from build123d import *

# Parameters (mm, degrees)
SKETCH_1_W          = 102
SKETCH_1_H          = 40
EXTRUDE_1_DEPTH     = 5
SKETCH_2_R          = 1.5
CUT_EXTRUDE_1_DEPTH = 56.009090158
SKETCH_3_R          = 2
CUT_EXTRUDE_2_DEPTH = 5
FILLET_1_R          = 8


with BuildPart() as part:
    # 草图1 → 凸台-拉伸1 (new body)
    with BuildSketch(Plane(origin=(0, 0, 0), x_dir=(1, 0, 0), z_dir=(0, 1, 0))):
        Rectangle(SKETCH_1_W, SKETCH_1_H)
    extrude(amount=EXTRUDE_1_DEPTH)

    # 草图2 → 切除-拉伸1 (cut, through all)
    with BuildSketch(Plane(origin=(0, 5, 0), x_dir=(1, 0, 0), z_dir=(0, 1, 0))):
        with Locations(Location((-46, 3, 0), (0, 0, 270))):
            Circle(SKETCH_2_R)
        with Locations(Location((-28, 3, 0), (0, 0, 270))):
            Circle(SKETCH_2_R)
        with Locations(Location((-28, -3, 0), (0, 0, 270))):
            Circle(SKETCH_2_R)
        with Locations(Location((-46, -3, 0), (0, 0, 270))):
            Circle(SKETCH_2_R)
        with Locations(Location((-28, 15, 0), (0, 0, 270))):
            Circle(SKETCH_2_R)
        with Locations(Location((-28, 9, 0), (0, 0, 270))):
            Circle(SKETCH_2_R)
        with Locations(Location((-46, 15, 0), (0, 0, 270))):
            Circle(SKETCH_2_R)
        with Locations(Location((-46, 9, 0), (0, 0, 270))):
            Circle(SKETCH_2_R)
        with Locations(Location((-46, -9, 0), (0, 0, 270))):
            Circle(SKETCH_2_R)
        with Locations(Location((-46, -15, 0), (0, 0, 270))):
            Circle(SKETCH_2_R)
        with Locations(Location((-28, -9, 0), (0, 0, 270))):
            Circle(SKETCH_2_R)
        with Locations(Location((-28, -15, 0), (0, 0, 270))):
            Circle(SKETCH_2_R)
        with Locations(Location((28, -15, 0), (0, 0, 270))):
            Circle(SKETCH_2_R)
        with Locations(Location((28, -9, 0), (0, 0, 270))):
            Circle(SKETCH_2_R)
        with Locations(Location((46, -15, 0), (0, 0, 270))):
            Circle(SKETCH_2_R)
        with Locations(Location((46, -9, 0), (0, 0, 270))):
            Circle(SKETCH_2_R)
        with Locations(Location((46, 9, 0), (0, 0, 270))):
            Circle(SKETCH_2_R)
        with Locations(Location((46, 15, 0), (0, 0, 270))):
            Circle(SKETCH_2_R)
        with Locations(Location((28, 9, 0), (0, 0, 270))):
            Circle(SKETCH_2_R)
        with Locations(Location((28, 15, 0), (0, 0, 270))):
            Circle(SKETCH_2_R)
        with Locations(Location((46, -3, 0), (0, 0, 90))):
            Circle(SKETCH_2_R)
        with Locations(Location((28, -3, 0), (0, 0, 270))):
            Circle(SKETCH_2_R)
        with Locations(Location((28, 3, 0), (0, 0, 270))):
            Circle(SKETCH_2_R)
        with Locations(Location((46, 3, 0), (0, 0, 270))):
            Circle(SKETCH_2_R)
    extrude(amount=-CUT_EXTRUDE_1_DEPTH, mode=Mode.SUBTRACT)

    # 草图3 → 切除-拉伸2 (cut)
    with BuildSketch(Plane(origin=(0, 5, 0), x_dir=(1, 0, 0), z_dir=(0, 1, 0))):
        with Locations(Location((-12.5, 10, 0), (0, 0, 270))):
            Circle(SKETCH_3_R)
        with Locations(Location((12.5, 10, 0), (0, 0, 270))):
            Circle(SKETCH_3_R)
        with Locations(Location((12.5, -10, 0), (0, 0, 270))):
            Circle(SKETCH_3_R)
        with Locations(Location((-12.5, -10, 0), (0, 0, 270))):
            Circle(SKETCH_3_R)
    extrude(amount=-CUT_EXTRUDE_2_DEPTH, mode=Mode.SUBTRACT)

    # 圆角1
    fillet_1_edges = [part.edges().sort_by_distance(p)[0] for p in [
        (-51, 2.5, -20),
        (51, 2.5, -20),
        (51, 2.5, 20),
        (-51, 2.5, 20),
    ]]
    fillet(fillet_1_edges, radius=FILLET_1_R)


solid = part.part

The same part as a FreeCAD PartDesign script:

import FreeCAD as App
import Part
import Sketcher


def edges_at(feature, points):
    """Names of the edges that pass closest to the given points."""
    edges = feature.Shape.Edges
    near = lambda p: min(range(len(edges)), key=lambda i: edges[i].distToShape(Part.Vertex(*p))[0])
    return sorted({f"Edge{near(p) + 1}" for p in points})


def add_polygon(sketch, points):
    """Adds a closed chain of lines whose ends are joined by coincident constraints."""
    first, n = sketch.GeometryCount, len(points)
    for a, b in zip(points, points[1:] + points[:1]):
        sketch.addGeometry(Part.LineSegment(App.Vector(*a, 0), App.Vector(*b, 0)), False)
    for i in range(n):
        sketch.addConstraint(Sketcher.Constraint("Coincident", first + i, 2, first + (i + 1) % n, 1))

doc = App.newDocument("Part")
body = doc.addObject("PartDesign::Body", "Body")

sketch1 = body.newObject("Sketcher::SketchObject", "Sketch")
sketch1.AttachmentSupport = (doc.getObject("XZ_Plane"), [""])
sketch1.MapMode = "FlatFace"
add_polygon(sketch1, [(-51, -20), (-51, 20), (51, 20), (51, -20)])
sketch1.addConstraint(Sketcher.Constraint("Vertical", 0))
sketch1.addConstraint(Sketcher.Constraint("Horizontal", 1))
sketch1.addConstraint(Sketcher.Constraint("Vertical", 2))
sketch1.addConstraint(Sketcher.Constraint("Horizontal", 3))
sketch1.addConstraint(Sketcher.Constraint("Symmetric", 0, 2, 2, 2, -1, 1))
sketch1.addConstraint(Sketcher.Constraint("DistanceX", 1, 1, 1, 2, 102.0))
sketch1.addConstraint(Sketcher.Constraint("DistanceY", 0, 1, 0, 2, 40.0))
pad1 = body.newObject("PartDesign::Pad", "Pad")
pad1.Profile = sketch1
pad1.Length = 5
pad1.Reversed = True

sketch2 = body.newObject("Sketcher::SketchObject", "Sketch001")
sketch2.AttachmentSupport = (doc.getObject("XZ_Plane"), [""])
sketch2.MapMode = "FlatFace"
sketch2.AttachmentOffset = App.Placement(App.Vector(0, 0, -5), App.Rotation())
sketch2.addGeometry(Part.Circle(App.Vector(-46, -3, 0), App.Vector(0, 0, 1), 1.5), False)
sketch2.addGeometry(Part.Circle(App.Vector(-28, -3, 0), App.Vector(0, 0, 1), 1.5), False)
sketch2.addGeometry(Part.Circle(App.Vector(-28, 3, 0), App.Vector(0, 0, 1), 1.5), False)
sketch2.addGeometry(Part.Circle(App.Vector(-46, 3, 0), App.Vector(0, 0, 1), 1.5), False)
sketch2.addGeometry(Part.Circle(App.Vector(-28, -15, 0), App.Vector(0, 0, 1), 1.5), False)
sketch2.addGeometry(Part.Circle(App.Vector(-28, -9, 0), App.Vector(0, 0, 1), 1.5), False)
sketch2.addGeometry(Part.Circle(App.Vector(-46, -15, 0), App.Vector(0, 0, 1), 1.5), False)
sketch2.addGeometry(Part.Circle(App.Vector(-46, -9, 0), App.Vector(0, 0, 1), 1.5), False)
sketch2.addGeometry(Part.Circle(App.Vector(-46, 9, 0), App.Vector(0, 0, 1), 1.5), False)
sketch2.addGeometry(Part.Circle(App.Vector(-46, 15, 0), App.Vector(0, 0, 1), 1.5), False)
sketch2.addGeometry(Part.Circle(App.Vector(-28, 9, 0), App.Vector(0, 0, 1), 1.5), False)
sketch2.addGeometry(Part.Circle(App.Vector(-28, 15, 0), App.Vector(0, 0, 1), 1.5), False)
sketch2.addGeometry(Part.Circle(App.Vector(28, 15, 0), App.Vector(0, 0, 1), 1.5), False)
sketch2.addGeometry(Part.Circle(App.Vector(28, 9, 0), App.Vector(0, 0, 1), 1.5), False)
sketch2.addGeometry(Part.Circle(App.Vector(46, 15, 0), App.Vector(0, 0, 1), 1.5), False)
sketch2.addGeometry(Part.Circle(App.Vector(46, 9, 0), App.Vector(0, 0, 1), 1.5), False)
sketch2.addGeometry(Part.Circle(App.Vector(46, -9, 0), App.Vector(0, 0, 1), 1.5), False)
sketch2.addGeometry(Part.Circle(App.Vector(46, -15, 0), App.Vector(0, 0, 1), 1.5), False)
sketch2.addGeometry(Part.Circle(App.Vector(28, -9, 0), App.Vector(0, 0, 1), 1.5), False)
sketch2.addGeometry(Part.Circle(App.Vector(28, -15, 0), App.Vector(0, 0, 1), 1.5), False)
sketch2.addGeometry(Part.Circle(App.Vector(46, 3, 0), App.Vector(0, 0, 1), 1.5), False)
sketch2.addGeometry(Part.Circle(App.Vector(28, 3, 0), App.Vector(0, 0, 1), 1.5), False)
sketch2.addGeometry(Part.Circle(App.Vector(28, -3, 0), App.Vector(0, 0, 1), 1.5), False)
sketch2.addGeometry(Part.Circle(App.Vector(46, -3, 0), App.Vector(0, 0, 1), 1.5), False)
sketch2.addConstraint(Sketcher.Constraint("Equal", 0, 1))
sketch2.addConstraint(Sketcher.Constraint("Equal", 1, 2))
sketch2.addConstraint(Sketcher.Constraint("Equal", 2, 3))
sketch2.addConstraint(Sketcher.Constraint("Equal", 3, 4))
sketch2.addConstraint(Sketcher.Constraint("Equal", 4, 5))
sketch2.addConstraint(Sketcher.Constraint("Equal", 5, 6))
sketch2.addConstraint(Sketcher.Constraint("Equal", 6, 7))
sketch2.addConstraint(Sketcher.Constraint("Equal", 7, 8))
sketch2.addConstraint(Sketcher.Constraint("Equal", 8, 9))
sketch2.addConstraint(Sketcher.Constraint("Equal", 9, 10))
sketch2.addConstraint(Sketcher.Constraint("Equal", 10, 11))
sketch2.addConstraint(Sketcher.Constraint("Equal", 11, 12))
sketch2.addConstraint(Sketcher.Constraint("Equal", 12, 13))
sketch2.addConstraint(Sketcher.Constraint("Equal", 13, 14))
sketch2.addConstraint(Sketcher.Constraint("Equal", 14, 15))
sketch2.addConstraint(Sketcher.Constraint("Equal", 15, 16))
sketch2.addConstraint(Sketcher.Constraint("Equal", 16, 17))
sketch2.addConstraint(Sketcher.Constraint("Equal", 17, 18))
sketch2.addConstraint(Sketcher.Constraint("Equal", 18, 19))
sketch2.addConstraint(Sketcher.Constraint("Equal", 19, 20))
sketch2.addConstraint(Sketcher.Constraint("Equal", 20, 21))
sketch2.addConstraint(Sketcher.Constraint("Equal", 21, 22))
sketch2.addConstraint(Sketcher.Constraint("Equal", 22, 23))
sketch2.addConstraint(Sketcher.Constraint("Symmetric", 4, 3, 12, 3, -1, 1))
sketch2.addConstraint(Sketcher.Constraint("Symmetric", 5, 3, 13, 3, -1, 1))
sketch2.addConstraint(Sketcher.Constraint("Symmetric", 6, 3, 14, 3, -1, 1))
sketch2.addConstraint(Sketcher.Constraint("Symmetric", 7, 3, 15, 3, -1, 1))
sketch2.addConstraint(Sketcher.Constraint("Symmetric", 8, 3, 16, 3, -1, 1))
sketch2.addConstraint(Sketcher.Constraint("Symmetric", 9, 3, 17, 3, -1, 1))
sketch2.addConstraint(Sketcher.Constraint("Symmetric", 10, 3, 18, 3, -1, 1))
sketch2.addConstraint(Sketcher.Constraint("Symmetric", 11, 3, 19, 3, -1, 1))
sketch2.addConstraint(Sketcher.Constraint("Symmetric", 0, 3, 20, 3, -1, 1))
sketch2.addConstraint(Sketcher.Constraint("Symmetric", 1, 3, 21, 3, -1, 1))
sketch2.addConstraint(Sketcher.Constraint("Symmetric", 2, 3, 22, 3, -1, 1))
sketch2.addConstraint(Sketcher.Constraint("Symmetric", 3, 3, 23, 3, -1, 1))
sketch2.addConstraint(Sketcher.Constraint("Symmetric", 11, 3, 12, 3, -2))
sketch2.addConstraint(Sketcher.Constraint("Symmetric", 10, 3, 13, 3, -2))
sketch2.addConstraint(Sketcher.Constraint("Symmetric", 9, 3, 14, 3, -2))
sketch2.addConstraint(Sketcher.Constraint("Symmetric", 8, 3, 15, 3, -2))
sketch2.addConstraint(Sketcher.Constraint("Symmetric", 3, 3, 20, 3, -2))
sketch2.addConstraint(Sketcher.Constraint("Symmetric", 2, 3, 21, 3, -2))
sketch2.addConstraint(Sketcher.Constraint("Horizontal", 0, 3, 1, 3))
sketch2.addConstraint(Sketcher.Constraint("Horizontal", 4, 3, 6, 3))
sketch2.addConstraint(Sketcher.Constraint("Horizontal", 5, 3, 7, 3))
sketch2.addConstraint(Sketcher.Constraint("Vertical", 2, 3, 4, 3))
sketch2.addConstraint(Sketcher.Constraint("Vertical", 4, 3, 5, 3))
sketch2.addConstraint(Sketcher.Constraint("Vertical", 3, 3, 6, 3))
sketch2.addConstraint(Sketcher.Constraint("Vertical", 6, 3, 7, 3))
sketch2.addConstraint(Sketcher.Constraint("Diameter", 0, 3.0))
sketch2.addConstraint(Sketcher.Constraint("DistanceX", 0, 3, -1, 1, 46.0))
sketch2.addConstraint(Sketcher.Constraint("DistanceY", 0, 3, -1, 1, 3.0))
sketch2.addConstraint(Sketcher.Constraint("DistanceX", 1, 3, -1, 1, 28.0))
sketch2.addConstraint(Sketcher.Constraint("DistanceY", 4, 3, -1, 1, 15.0))
sketch2.addConstraint(Sketcher.Constraint("DistanceY", 5, 3, -1, 1, 9.0))
pocket1 = body.newObject("PartDesign::Pocket", "Pocket")
pocket1.Profile = sketch2
pocket1.Type = "ThroughAll"
pocket1.Reversed = True

sketch3 = body.newObject("Sketcher::SketchObject", "Sketch002")
sketch3.AttachmentSupport = (doc.getObject("XZ_Plane"), [""])
sketch3.MapMode = "FlatFace"
sketch3.AttachmentOffset = App.Placement(App.Vector(0, 0, -5), App.Rotation())
sketch3.addGeometry(Part.Circle(App.Vector(-12.5, -10, 0), App.Vector(0, 0, 1), 2), False)
sketch3.addGeometry(Part.Circle(App.Vector(12.5, -10, 0), App.Vector(0, 0, 1), 2), False)
sketch3.addGeometry(Part.Circle(App.Vector(12.5, 10, 0), App.Vector(0, 0, 1), 2), False)
sketch3.addGeometry(Part.Circle(App.Vector(-12.5, 10, 0), App.Vector(0, 0, 1), 2), False)
sketch3.addConstraint(Sketcher.Constraint("Equal", 0, 1))
sketch3.addConstraint(Sketcher.Constraint("Equal", 1, 2))
sketch3.addConstraint(Sketcher.Constraint("Equal", 2, 3))
sketch3.addConstraint(Sketcher.Constraint("Symmetric", 0, 3, 2, 3, -1, 1))
sketch3.addConstraint(Sketcher.Constraint("Symmetric", 1, 3, 3, 3, -1, 1))
sketch3.addConstraint(Sketcher.Constraint("Symmetric", 0, 3, 1, 3, -2))
sketch3.addConstraint(Sketcher.Constraint("Diameter", 0, 4.0))
sketch3.addConstraint(Sketcher.Constraint("DistanceY", 0, 3, -1, 1, 10.0))
sketch3.addConstraint(Sketcher.Constraint("DistanceX", 0, 3, 1, 3, 25.0))
pocket2 = body.newObject("PartDesign::Pocket", "Pocket001")
pocket2.Profile = sketch3
pocket2.Length = 5
pocket2.Reversed = True
doc.recompute()

fillet = body.newObject("PartDesign::Fillet", "Fillet")
fillet.Base = (pocket2, edges_at(pocket2, [
    (-51, 2.5, -20),
    (51, 2.5, -20),
    (51, 2.5, 20),
    (-51, 2.5, 20),
]))
fillet.Radius = 8

doc.recompute()
